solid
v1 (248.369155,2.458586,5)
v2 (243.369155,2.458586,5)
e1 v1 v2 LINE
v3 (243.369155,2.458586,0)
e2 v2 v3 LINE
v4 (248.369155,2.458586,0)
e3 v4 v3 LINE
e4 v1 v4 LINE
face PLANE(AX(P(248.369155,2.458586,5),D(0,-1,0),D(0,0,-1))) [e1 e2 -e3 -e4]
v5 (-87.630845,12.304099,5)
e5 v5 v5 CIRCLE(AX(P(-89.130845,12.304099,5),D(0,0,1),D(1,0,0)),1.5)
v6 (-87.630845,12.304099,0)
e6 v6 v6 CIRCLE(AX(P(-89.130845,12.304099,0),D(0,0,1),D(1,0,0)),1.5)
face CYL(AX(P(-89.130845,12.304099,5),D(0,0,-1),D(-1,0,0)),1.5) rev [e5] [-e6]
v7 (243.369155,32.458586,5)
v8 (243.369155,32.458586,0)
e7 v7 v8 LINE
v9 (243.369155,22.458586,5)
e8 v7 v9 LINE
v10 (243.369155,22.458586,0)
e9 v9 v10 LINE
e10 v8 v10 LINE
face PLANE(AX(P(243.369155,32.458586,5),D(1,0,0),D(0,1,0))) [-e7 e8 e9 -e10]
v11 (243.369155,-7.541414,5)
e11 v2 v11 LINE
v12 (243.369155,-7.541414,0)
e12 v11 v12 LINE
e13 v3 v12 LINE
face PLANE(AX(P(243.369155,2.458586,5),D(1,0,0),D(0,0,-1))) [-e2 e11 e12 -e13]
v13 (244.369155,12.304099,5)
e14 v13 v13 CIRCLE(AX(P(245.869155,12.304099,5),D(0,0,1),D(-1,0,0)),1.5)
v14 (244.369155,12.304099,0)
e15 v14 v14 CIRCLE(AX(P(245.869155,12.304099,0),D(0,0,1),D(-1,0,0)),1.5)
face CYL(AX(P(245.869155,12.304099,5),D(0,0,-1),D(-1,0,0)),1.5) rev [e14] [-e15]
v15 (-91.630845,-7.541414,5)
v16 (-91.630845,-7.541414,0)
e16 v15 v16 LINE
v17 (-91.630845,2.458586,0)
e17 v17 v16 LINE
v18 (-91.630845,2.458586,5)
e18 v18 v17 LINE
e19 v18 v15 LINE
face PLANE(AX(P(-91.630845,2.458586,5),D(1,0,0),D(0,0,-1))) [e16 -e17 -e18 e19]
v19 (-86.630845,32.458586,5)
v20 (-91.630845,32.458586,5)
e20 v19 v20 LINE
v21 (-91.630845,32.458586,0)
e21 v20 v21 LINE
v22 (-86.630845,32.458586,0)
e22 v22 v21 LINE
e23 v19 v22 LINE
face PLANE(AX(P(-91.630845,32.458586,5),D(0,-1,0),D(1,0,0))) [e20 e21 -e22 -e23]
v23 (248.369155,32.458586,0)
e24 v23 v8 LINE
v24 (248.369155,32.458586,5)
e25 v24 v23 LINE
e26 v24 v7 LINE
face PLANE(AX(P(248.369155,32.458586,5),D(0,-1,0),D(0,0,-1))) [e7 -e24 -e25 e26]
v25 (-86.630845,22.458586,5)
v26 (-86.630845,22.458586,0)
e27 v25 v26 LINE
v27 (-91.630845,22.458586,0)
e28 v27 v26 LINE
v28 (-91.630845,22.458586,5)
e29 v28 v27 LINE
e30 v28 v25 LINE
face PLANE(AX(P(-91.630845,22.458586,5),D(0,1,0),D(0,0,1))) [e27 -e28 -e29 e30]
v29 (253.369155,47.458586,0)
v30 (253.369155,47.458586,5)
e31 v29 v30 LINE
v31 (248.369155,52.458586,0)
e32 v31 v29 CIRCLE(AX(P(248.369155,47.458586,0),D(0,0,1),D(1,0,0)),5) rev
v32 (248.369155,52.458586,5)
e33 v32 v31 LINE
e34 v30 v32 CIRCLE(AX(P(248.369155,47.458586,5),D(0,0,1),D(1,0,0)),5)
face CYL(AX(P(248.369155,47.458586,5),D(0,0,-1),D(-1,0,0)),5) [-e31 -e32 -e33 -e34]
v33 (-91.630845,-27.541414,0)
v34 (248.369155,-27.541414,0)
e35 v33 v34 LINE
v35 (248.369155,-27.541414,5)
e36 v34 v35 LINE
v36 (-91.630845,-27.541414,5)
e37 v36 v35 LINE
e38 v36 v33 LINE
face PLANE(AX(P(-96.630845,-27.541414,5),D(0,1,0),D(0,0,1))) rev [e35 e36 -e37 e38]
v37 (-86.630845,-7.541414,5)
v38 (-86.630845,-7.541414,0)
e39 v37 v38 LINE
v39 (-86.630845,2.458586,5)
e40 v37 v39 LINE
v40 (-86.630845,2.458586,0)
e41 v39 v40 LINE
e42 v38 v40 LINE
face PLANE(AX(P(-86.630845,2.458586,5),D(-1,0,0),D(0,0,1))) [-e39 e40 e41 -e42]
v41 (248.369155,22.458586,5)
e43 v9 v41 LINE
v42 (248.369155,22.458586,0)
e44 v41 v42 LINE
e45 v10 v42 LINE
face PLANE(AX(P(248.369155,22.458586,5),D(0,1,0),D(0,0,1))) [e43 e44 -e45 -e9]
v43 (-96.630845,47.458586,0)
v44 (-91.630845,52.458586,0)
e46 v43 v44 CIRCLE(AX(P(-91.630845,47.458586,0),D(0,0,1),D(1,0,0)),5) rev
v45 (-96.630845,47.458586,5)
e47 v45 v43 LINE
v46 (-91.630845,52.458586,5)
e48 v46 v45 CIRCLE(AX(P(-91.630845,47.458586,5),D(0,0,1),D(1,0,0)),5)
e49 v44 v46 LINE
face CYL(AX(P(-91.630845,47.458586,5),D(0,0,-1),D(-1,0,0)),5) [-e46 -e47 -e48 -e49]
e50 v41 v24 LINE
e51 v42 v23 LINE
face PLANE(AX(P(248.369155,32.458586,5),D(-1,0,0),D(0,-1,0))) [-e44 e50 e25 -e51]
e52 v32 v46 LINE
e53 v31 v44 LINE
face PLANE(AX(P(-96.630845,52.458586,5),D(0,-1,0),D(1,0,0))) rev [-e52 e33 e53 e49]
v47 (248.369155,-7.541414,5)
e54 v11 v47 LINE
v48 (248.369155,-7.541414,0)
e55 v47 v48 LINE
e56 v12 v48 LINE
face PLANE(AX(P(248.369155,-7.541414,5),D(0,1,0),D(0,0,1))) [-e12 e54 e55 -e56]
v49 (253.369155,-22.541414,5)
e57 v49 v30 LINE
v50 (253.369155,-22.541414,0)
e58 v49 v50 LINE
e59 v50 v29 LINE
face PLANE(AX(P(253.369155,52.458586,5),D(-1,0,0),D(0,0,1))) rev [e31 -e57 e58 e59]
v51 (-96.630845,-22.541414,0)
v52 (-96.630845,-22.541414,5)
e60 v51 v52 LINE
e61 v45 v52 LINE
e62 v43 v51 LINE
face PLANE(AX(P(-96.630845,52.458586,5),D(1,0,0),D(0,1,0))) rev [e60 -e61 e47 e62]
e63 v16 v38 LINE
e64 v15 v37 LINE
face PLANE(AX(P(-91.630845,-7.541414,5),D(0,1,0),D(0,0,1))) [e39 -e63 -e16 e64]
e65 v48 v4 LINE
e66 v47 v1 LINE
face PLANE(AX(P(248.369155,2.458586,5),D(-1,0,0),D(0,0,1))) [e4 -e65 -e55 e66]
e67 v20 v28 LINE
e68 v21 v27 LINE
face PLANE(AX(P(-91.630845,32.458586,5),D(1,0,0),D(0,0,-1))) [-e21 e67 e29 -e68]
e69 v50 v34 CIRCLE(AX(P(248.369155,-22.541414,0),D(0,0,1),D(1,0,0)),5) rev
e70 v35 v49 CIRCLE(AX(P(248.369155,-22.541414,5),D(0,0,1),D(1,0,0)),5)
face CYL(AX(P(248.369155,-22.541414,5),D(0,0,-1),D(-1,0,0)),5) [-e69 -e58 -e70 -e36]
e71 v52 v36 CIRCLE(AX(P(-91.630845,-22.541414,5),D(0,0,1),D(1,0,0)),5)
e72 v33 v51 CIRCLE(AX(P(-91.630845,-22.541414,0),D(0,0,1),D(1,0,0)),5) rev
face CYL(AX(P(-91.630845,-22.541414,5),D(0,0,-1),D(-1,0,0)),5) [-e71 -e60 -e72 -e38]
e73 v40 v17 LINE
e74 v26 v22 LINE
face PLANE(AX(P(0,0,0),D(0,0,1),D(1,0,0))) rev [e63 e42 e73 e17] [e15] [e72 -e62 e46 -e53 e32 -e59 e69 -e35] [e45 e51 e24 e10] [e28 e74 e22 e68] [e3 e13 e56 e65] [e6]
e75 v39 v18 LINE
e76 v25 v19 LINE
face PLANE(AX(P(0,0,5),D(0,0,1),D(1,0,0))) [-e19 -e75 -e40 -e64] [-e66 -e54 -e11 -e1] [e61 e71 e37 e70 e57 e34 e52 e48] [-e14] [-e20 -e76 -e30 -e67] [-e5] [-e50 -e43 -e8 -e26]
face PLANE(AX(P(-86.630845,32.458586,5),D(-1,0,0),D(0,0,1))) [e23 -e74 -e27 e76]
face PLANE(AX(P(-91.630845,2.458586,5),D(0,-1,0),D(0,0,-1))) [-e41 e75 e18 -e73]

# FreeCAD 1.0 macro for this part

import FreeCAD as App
import Part
import Sketcher
from FreeCAD import Vector
Q = App.Units.Quantity


def edges_at(feature, points):
    """Names of the edges that pass closest to the given points."""
    edges = feature.Shape.Edges
    near = lambda p: min(range(len(edges)), key=lambda i: edges[i].distToShape(Part.Vertex(*p))[0])
    return sorted({f"Edge{near(p) + 1}" for p in points})

doc = App.newDocument("Part")
params = doc.addObject("Spreadsheet::Sheet", "Params")
for row, (alias, value) in enumerate([
    ("sketch1_diameter", "3 mm"),
    ("sketch1_width", "350 mm"),
    ("sketch1_width2", "5 mm"),
    ("sketch1_height", "80 mm"),
    ("sketch1_height2", "10 mm"),
    ("pad1_length", "5 mm"),
    ("fillet_radius", "5 mm"),
], start=1):
    params.set(f"A{row}", alias)
    params.set(f"B{row}", "=" + value)
    params.setAlias(f"B{row}", alias)

body = doc.addObject("PartDesign::Body", "Body")

# Sketch on XY plane
sketch1 = body.newObject("Sketcher::SketchObject", "Sketch")
sketch1.AttachmentSupport = (doc.getObject("XY_Plane"), [""])
sketch1.MapMode = "FlatFace"
sketch1.addGeometry(Part.LineSegment(Vector(-96.6, 52.5, 0), Vector(-96.6, -27.5, 0)), False)
sketch1.addGeometry(Part.LineSegment(Vector(-96.6, -27.5, 0), Vector(253.4, -27.5, 0)), False)
sketch1.addGeometry(Part.LineSegment(Vector(253.4, -27.5, 0), Vector(253.4, 52.5, 0)), False)
sketch1.addGeometry(Part.LineSegment(Vector(253.4, 52.5, 0), Vector(-96.6, 52.5, 0)), False)
sketch1.addGeometry(Part.LineSegment(Vector(-86.6, -7.5, 0), Vector(-91.6, -7.5, 0)), False)
sketch1.addGeometry(Part.LineSegment(Vector(-91.6, -7.5, 0), Vector(-91.6, 2.5, 0)), False)
sketch1.addGeometry(Part.LineSegment(Vector(-91.6, 2.5, 0), Vector(-86.6, 2.5, 0)), False)
sketch1.addGeometry(Part.LineSegment(Vector(-86.6, 2.5, 0), Vector(-86.6, -7.5, 0)), False)
sketch1.addGeometry(Part.Circle(Vector(-89.1, 12.3, 0), Vector(0, 0, 1), 1.5), False)
sketch1.addGeometry(Part.LineSegment(Vector(248.4, -7.5, 0), Vector(243.4, -7.5, 0)), False)
sketch1.addGeometry(Part.LineSegment(Vector(243.4, -7.5, 0), Vector(243.4, 2.5, 0)), False)
sketch1.addGeometry(Part.LineSegment(Vector(243.4, 2.5, 0), Vector(248.4, 2.5, 0)), False)
sketch1.addGeometry(Part.LineSegment(Vector(248.4, 2.5, 0), Vector(248.4, -7.5, 0)), False)
sketch1.addGeometry(Part.Circle(Vector(245.9, 12.3, 0), Vector(0, 0, 1), 1.5), False)
sketch1.addGeometry(Part.LineSegment(Vector(-86.6, 22.5, 0), Vector(-91.6, 22.5, 0)), False)
sketch1.addGeometry(Part.LineSegment(Vector(-91.6, 22.5, 0), Vector(-91.6, 32.5, 0)), False)
sketch1.addGeometry(Part.LineSegment(Vector(-91.6, 32.5, 0), Vector(-86.6, 32.5, 0)), False)
sketch1.addGeometry(Part.LineSegment(Vector(-86.6, 32.5, 0), Vector(-86.6, 22.5, 0)), False)
sketch1.addGeometry(Part.LineSegment(Vector(248.4, 22.5, 0), Vector(243.4, 22.5, 0)), False)
sketch1.addGeometry(Part.LineSegment(Vector(243.4, 22.5, 0), Vector(243.4, 32.5, 0)), False)
sketch1.addGeometry(Part.LineSegment(Vector(243.4, 32.5, 0), Vector(248.4, 32.5, 0)), False)
sketch1.addGeometry(Part.LineSegment(Vector(248.4, 32.5, 0), Vector(248.4, 22.5, 0)), False)
sketch1.addConstraint(Sketcher.Constraint("Coincident", 0, 2, 1, 1))
sketch1.addConstraint(Sketcher.Constraint("Coincident", 1, 2, 2, 1))
sketch1.addConstraint(Sketcher.Constraint("Coincident", 2, 2, 3, 1))
sketch1.addConstraint(Sketcher.Constraint("Coincident", 3, 2, 0, 1))
sketch1.addConstraint(Sketcher.Constraint("Coincident", 4, 2, 5, 1))
sketch1.addConstraint(Sketcher.Constraint("Coincident", 5, 2, 6, 1))
sketch1.addConstraint(Sketcher.Constraint("Coincident", 6, 2, 7, 1))
sketch1.addConstraint(Sketcher.Constraint("Coincident", 7, 2, 4, 1))
sketch1.addConstraint(Sketcher.Constraint("Coincident", 9, 2, 10, 1))
sketch1.addConstraint(Sketcher.Constraint("Coincident", 10, 2, 11, 1))
sketch1.addConstraint(Sketcher.Constraint("Coincident", 11, 2, 12, 1))
sketch1.addConstraint(Sketcher.Constraint("Coincident", 12, 2, 9, 1))
sketch1.addConstraint(Sketcher.Constraint("Coincident", 14, 2, 15, 1))
sketch1.addConstraint(Sketcher.Constraint("Coincident", 15, 2, 16, 1))
sketch1.addConstraint(Sketcher.Constraint("Coincident", 16, 2, 17, 1))
sketch1.addConstraint(Sketcher.Constraint("Coincident", 17, 2, 14, 1))
sketch1.addConstraint(Sketcher.Constraint("Coincident", 18, 2, 19, 1))
sketch1.addConstraint(Sketcher.Constraint("Coincident", 19, 2, 20, 1))
sketch1.addConstraint(Sketcher.Constraint("Coincident", 20, 2, 21, 1))
sketch1.addConstraint(Sketcher.Constraint("Coincident", 21, 2, 18, 1))
sketch1.addConstraint(Sketcher.Constraint("Vertical", 0))
sketch1.addConstraint(Sketcher.Constraint("Horizontal", 1))
sketch1.addConstraint(Sketcher.Constraint("Vertical", 2))
sketch1.addConstraint(Sketcher.Constraint("Horizontal", 3))
sketch1.addConstraint(Sketcher.Constraint("Horizontal", 4))
sketch1.addConstraint(Sketcher.Constraint("Vertical", 5))
sketch1.addConstraint(Sketcher.Constraint("Horizontal", 6))
sketch1.addConstraint(Sketcher.Constraint("Vertical", 7))
sketch1.addConstraint(Sketcher.Constraint("Horizontal", 9))
sketch1.addConstraint(Sketcher.Constraint("Vertical", 10))
sketch1.addConstraint(Sketcher.Constraint("Horizontal", 11))
sketch1.addConstraint(Sketcher.Constraint("Vertical", 12))
sketch1.addConstraint(Sketcher.Constraint("Horizontal", 14))
sketch1.addConstraint(Sketcher.Constraint("Vertical", 15))
sketch1.addConstraint(Sketcher.Constraint("Horizontal", 16))
sketch1.addConstraint(Sketcher.Constraint("Vertical", 17))
sketch1.addConstraint(Sketcher.Constraint("Horizontal", 18))
sketch1.addConstraint(Sketcher.Constraint("Vertical", 19))
sketch1.addConstraint(Sketcher.Constraint("Horizontal", 20))
sketch1.addConstraint(Sketcher.Constraint("Vertical", 21))
sketch1.addConstraint(Sketcher.Constraint("Equal", 8, 13))
sketch1.addConstraint(Sketcher.Constraint("Horizontal", 8, 3, 13, 3))
sketch1.addConstraint(Sketcher.Constraint("Horizontal", 7, 2, 9, 2))
sketch1.addConstraint(Sketcher.Constraint("Horizontal", 6, 2, 10, 2))
sketch1.addConstraint(Sketcher.Constraint("Horizontal", 17, 2, 18, 2))
sketch1.addConstraint(Sketcher.Constraint("Horizontal", 16, 2, 19, 2))
sketch1.addConstraint(Sketcher.Constraint("Vertical", 5, 2, 14, 2))
sketch1.addConstraint(Sketcher.Constraint("Vertical", 7, 2, 16, 2))
sketch1.addConstraint(Sketcher.Constraint("Vertical", 10, 2, 18, 2))
sketch1.addConstraint(Sketcher.Constraint("Vertical", 12, 2, 20, 2))
sketch1.addConstraint(Sketcher.Constraint("Equal", 6, 9))
sketch1.addConstraint(Sketcher.Constraint("Equal", 12, 15))
sketch1.addConstraint(Sketcher.Constraint("Diameter", 8, Q("3 mm")))
sketch1.addConstraint(Sketcher.Constraint("DistanceX", 1, 1, 1, 2, Q("350 mm")))
sketch1.addConstraint(Sketcher.Constraint("DistanceX", 4, 2, 4, 1, Q("5 mm")))
sketch1.addConstraint(Sketcher.Constraint("DistanceY", 0, 2, 0, 1, Q("80 mm")))
sketch1.addConstraint(Sketcher.Constraint("DistanceY", 5, 1, 5, 2, Q("10 mm")))
sketch1.addConstraint(Sketcher.Constraint("DistanceX", 8, 3, 13, 3, Q("335 mm")))
sketch1.addConstraint(Sketcher.Constraint("DistanceX", 0, 2, 4, 2, Q("5 mm")))
sketch1.addConstraint(Sketcher.Constraint("DistanceY", 0, 2, 4, 2, Q("20 mm")))
sketch1.addConstraint(Sketcher.Constraint("DistanceX", 9, 2, 1, 2, Q("10 mm")))
sketch1.addConstraint(Sketcher.Constraint("DistanceY", 5, 2, 14, 2, Q("20 mm")))
sketch1.addConstraint(Sketcher.Constraint("DistanceX", 0, 2, 8, 3, Q("7.5 mm")))
sketch1.addConstraint(Sketcher.Constraint("DistanceY", -1, 1, 8, 3, Q("12.304099 mm")))
sketch1.addConstraint(Sketcher.Constraint("DistanceX", 8, 3, -1, 1, Q("89.130845 mm")))
sketch1.addConstraint(Sketcher.Constraint("DistanceY", 0, 2, -1, 1, Q("27.541414 mm")))
sketch1.setExpression("Constraints[52]", "Params.sketch1_diameter")
sketch1.setExpression("Constraints[53]", "Params.sketch1_width")
sketch1.setExpression("Constraints[54]", "Params.sketch1_width2")
sketch1.setExpression("Constraints[55]", "Params.sketch1_height")
sketch1.setExpression("Constraints[56]", "Params.sketch1_height2")
pad1 = body.newObject("PartDesign::Pad", "Pad")
pad1.Profile = sketch1
pad1.setExpression("Length", "Params.pad1_length")
doc.recompute()

fillet = body.newObject("PartDesign::Fillet", "Fillet")
fillet.Base = (pad1, edges_at(pad1, [
    (-96.631, 52.459, 2.5),
    (253.369, 52.459, 2.5),
    (253.369, -27.541, 2.5),
    (-96.631, -27.541, 2.5),
]))
fillet.setExpression("Radius", "Params.fillet_radius")

doc.recompute()
